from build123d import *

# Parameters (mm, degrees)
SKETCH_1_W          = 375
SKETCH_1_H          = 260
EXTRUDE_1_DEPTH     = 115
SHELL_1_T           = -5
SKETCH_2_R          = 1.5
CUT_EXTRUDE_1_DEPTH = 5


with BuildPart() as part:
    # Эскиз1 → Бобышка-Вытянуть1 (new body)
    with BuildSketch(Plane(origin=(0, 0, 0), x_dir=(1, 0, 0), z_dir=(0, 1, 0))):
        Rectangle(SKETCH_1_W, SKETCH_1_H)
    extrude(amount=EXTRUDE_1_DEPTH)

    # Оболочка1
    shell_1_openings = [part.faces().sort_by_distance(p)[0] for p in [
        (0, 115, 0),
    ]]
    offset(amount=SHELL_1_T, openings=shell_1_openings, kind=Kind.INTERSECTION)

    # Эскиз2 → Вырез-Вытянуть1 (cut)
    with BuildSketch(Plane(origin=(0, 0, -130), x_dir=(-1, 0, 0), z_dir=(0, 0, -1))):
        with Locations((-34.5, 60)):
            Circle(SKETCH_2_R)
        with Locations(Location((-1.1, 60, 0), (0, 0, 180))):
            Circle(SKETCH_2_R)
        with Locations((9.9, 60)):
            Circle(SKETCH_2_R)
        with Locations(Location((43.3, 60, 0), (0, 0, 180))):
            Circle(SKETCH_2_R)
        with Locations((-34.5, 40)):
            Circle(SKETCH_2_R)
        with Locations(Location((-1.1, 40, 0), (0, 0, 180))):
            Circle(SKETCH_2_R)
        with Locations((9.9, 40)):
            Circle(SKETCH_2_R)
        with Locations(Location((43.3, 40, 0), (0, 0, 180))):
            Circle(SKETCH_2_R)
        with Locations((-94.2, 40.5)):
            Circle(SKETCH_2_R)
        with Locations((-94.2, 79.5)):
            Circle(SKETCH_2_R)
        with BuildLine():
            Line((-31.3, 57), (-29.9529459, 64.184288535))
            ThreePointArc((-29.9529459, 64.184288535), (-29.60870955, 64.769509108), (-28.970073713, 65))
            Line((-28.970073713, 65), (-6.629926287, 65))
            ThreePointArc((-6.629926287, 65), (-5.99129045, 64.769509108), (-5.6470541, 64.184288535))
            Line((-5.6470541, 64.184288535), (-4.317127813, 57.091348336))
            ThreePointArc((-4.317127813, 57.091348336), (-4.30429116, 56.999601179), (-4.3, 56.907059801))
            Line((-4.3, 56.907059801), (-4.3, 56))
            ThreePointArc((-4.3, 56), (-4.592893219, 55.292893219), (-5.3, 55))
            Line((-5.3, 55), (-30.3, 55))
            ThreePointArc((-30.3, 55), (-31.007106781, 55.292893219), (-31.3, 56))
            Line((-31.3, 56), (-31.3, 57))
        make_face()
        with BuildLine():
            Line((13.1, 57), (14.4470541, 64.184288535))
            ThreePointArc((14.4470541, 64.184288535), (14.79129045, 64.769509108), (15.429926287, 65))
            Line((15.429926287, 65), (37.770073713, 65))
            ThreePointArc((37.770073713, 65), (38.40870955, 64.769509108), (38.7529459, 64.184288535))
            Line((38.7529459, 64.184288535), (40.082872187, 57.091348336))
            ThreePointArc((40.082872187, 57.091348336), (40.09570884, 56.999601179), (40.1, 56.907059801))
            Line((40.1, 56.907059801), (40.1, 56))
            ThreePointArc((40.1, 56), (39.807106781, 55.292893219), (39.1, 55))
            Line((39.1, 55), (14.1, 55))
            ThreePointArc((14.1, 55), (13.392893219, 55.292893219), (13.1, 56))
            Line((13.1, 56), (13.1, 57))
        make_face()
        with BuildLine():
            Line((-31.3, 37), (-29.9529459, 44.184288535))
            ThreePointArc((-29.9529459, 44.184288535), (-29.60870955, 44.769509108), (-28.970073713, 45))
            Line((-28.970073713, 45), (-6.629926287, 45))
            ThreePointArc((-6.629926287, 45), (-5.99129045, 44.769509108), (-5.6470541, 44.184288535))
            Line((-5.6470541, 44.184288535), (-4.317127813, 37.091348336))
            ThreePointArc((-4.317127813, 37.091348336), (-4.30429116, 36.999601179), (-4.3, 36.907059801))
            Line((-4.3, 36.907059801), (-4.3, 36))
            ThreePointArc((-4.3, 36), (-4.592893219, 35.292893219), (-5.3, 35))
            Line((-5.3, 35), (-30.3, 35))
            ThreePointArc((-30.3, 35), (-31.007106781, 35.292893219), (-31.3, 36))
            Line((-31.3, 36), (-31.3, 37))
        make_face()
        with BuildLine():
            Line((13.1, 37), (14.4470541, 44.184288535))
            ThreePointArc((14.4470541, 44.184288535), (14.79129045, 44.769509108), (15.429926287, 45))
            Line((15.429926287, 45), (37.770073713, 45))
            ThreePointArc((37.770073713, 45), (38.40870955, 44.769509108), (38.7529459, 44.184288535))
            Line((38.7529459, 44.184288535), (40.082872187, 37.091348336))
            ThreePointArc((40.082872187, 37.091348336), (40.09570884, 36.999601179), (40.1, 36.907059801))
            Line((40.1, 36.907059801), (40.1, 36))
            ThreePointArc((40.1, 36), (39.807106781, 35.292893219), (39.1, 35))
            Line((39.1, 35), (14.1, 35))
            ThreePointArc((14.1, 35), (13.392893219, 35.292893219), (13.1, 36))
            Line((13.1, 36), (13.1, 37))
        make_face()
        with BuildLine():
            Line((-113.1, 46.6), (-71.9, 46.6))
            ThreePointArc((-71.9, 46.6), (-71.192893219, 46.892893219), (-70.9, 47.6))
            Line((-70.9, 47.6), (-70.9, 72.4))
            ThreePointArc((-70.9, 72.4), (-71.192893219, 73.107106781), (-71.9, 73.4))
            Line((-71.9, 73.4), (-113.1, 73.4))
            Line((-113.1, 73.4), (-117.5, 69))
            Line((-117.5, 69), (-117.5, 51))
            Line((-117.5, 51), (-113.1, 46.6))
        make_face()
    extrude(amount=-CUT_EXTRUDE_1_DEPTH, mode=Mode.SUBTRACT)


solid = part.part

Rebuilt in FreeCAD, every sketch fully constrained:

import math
import FreeCAD as App
import Part
import Sketcher
from FreeCAD import Vector
Q = App.Units.Quantity


def faces_at(feature, points):
    """Names of the faces that lie closest to the given points."""
    faces = feature.Shape.Faces
    near = lambda p: min(range(len(faces)), key=lambda i: faces[i].distToShape(Part.Vertex(*p))[0])
    return sorted({f"Face{near(p) + 1}" for p in points})

doc = App.newDocument("Part")
body = doc.addObject("PartDesign::Body", "Body")

sketch1 = doc.addObject("Sketcher::SketchObject", "Sketch")
body.addObject(sketch1)
sketch1.AttachmentSupport = (doc.XZ_Plane, [""])
sketch1.MapMode = "FlatFace"
sketch1.addGeometry([
    Part.LineSegment(Vector(-188, -130, 0), Vector(-188, 130, 0)),
    Part.LineSegment(Vector(-188, 130, 0), Vector(188, 130, 0)),
    Part.LineSegment(Vector(188, 130, 0), Vector(188, -130, 0)),
    Part.LineSegment(Vector(188, -130, 0), Vector(-188, -130, 0)),
], False)
sketch1.addConstraint([
    Sketcher.Constraint("Coincident", 0, 2, 1, 1),
    Sketcher.Constraint("Coincident", 1, 2, 2, 1),
    Sketcher.Constraint("Coincident", 2, 2, 3, 1),
    Sketcher.Constraint("Coincident", 3, 2, 0, 1),
    Sketcher.Constraint("Vertical", 0),
    Sketcher.Constraint("Horizontal", 1),
    Sketcher.Constraint("Vertical", 2),
    Sketcher.Constraint("Horizontal", 3),
    Sketcher.Constraint("Symmetric", 0, 2, 2, 2, -1, 1),
    Sketcher.Constraint("DistanceX", 1, 1, 1, 2, Q("375 mm")),
    Sketcher.Constraint("DistanceY", 0, 1, 0, 2, Q("260 mm")),
])
pad1 = doc.addObject("PartDesign::Pad", "Pad")
body.addObject(pad1)
pad1.Profile = sketch1
pad1.Length = 115
pad1.Reversed = True
doc.recompute()

thickness = doc.addObject("PartDesign::Thickness", "Thickness")
body.addObject(thickness)
thickness.Base = (pad1, faces_at(pad1, [(0, 115, 0)]))
thickness.Value = 5
thickness.Reversed = True
thickness.Join = "Intersection"

sketch2 = doc.addObject("Sketcher::SketchObject", "Sketch001")
body.addObject(sketch2)
sketch2.AttachmentSupport = (doc.XY_Plane, [""])
sketch2.MapMode = "FlatFace"
sketch2.AttachmentOffset = App.Placement(Vector(0, 0, -130), App.Rotation())
sketch2.addGeometry([
    Part.Circle(Vector(34.5, 60, 0), Vector(0, 0, 1), 1.5),
    Part.Circle(Vector(1.1, 60, 0), Vector(0, 0, 1), 1.5),
    Part.Circle(Vector(-9.9, 60, 0), Vector(0, 0, 1), 1.5),
    Part.Circle(Vector(-43.3, 60, 0), Vector(0, 0, 1), 1.5),
    Part.Circle(Vector(34.5, 40, 0), Vector(0, 0, 1), 1.5),
    Part.Circle(Vector(1.1, 40, 0), Vector(0, 0, 1), 1.5),
    Part.Circle(Vector(-9.9, 40, 0), Vector(0, 0, 1), 1.5),
    Part.Circle(Vector(-43.3, 40, 0), Vector(0, 0, 1), 1.5),
    Part.Circle(Vector(94.2, 40.5, 0), Vector(0, 0, 1), 1.5),
    Part.Circle(Vector(94.2, 79.5, 0), Vector(0, 0, 1), 1.5),
    Part.LineSegment(Vector(29.95, 64.18, 0), Vector(31.3, 57, 0)),
    Part.LineSegment(Vector(31.3, 57, 0), Vector(31.3, 56, 0)),
    Part.ArcOfCircle(Part.Circle(Vector(30.3, 56, 0), Vector(0, 0, 1), 1), math.radians(-90), math.radians(0)),
    Part.LineSegment(Vector(30.3, 55, 0), Vector(5.3, 55, 0)),
    Part.ArcOfCircle(Part.Circle(Vector(5.3, 56, 0), Vector(0, 0, 1), 1), math.radians(-180), math.radians(-90)),
    Part.LineSegment(Vector(4.3, 56, 0), Vector(4.3, 56.91, 0)),
    Part.ArcOfCircle(Part.Circle(Vector(5.3, 56.91, 0), Vector(0, 0, 1), 1), math.radians(169.38), math.radians(180)),
    Part.LineSegment(Vector(4.32, 57.09, 0), Vector(5.65, 64.18, 0)),
    Part.ArcOfCircle(Part.Circle(Vector(6.63, 64, 0), Vector(0, 0, 1), 1), math.radians(90), math.radians(169)),
    Part.LineSegment(Vector(6.63, 65, 0), Vector(28.97, 65, 0)),
    Part.ArcOfCircle(Part.Circle(Vector(28.97, 64, 0), Vector(0, 0, 1), 1), math.radians(11), math.radians(90)),
    Part.LineSegment(Vector(-14.45, 64.18, 0), Vector(-13.1, 57, 0)),
    Part.LineSegment(Vector(-13.1, 57, 0), Vector(-13.1, 56, 0)),
    Part.ArcOfCircle(Part.Circle(Vector(-14.1, 56, 0), Vector(0, 0, 1), 1), math.radians(-90), math.radians(0)),
    Part.LineSegment(Vector(-14.1, 55, 0), Vector(-39.1, 55, 0)),
    Part.ArcOfCircle(Part.Circle(Vector(-39.1, 56, 0), Vector(0, 0, 1), 1), math.radians(-180), math.radians(-90)),
    Part.LineSegment(Vector(-40.1, 56, 0), Vector(-40.1, 56.91, 0)),
    Part.ArcOfCircle(Part.Circle(Vector(-39.1, 56.91, 0), Vector(0, 0, 1), 1), math.radians(169.38), math.radians(180)),
    Part.LineSegment(Vector(-40.08, 57.09, 0), Vector(-38.75, 64.18, 0)),
    Part.ArcOfCircle(Part.Circle(Vector(-37.77, 64, 0), Vector(0, 0, 1), 1), math.radians(90), math.radians(169)),
    Part.LineSegment(Vector(-37.77, 65, 0), Vector(-15.43, 65, 0)),
    Part.ArcOfCircle(Part.Circle(Vector(-15.43, 64, 0), Vector(0, 0, 1), 1), math.radians(11), math.radians(90)),
    Part.LineSegment(Vector(29.95, 44.18, 0), Vector(31.3, 37, 0)),
    Part.LineSegment(Vector(31.3, 37, 0), Vector(31.3, 36, 0)),
    Part.ArcOfCircle(Part.Circle(Vector(30.3, 36, 0), Vector(0, 0, 1), 1), math.radians(-90), math.radians(0)),
    Part.LineSegment(Vector(30.3, 35, 0), Vector(5.3, 35, 0)),
    Part.ArcOfCircle(Part.Circle(Vector(5.3, 36, 0), Vector(0, 0, 1), 1), math.radians(-180), math.radians(-90)),
    Part.LineSegment(Vector(4.3, 36, 0), Vector(4.3, 36.91, 0)),
    Part.ArcOfCircle(Part.Circle(Vector(5.3, 36.91, 0), Vector(0, 0, 1), 1), math.radians(169.38), math.radians(180)),
    Part.LineSegment(Vector(4.32, 37.09, 0), Vector(5.65, 44.18, 0)),
    Part.ArcOfCircle(Part.Circle(Vector(6.63, 44, 0), Vector(0, 0, 1), 1), math.radians(90), math.radians(169)),
    Part.LineSegment(Vector(6.63, 45, 0), Vector(28.97, 45, 0)),
    Part.ArcOfCircle(Part.Circle(Vector(28.97, 44, 0), Vector(0, 0, 1), 1), math.radians(11), math.radians(90)),
    Part.LineSegment(Vector(-14.45, 44.18, 0), Vector(-13.1, 37, 0)),
    Part.LineSegment(Vector(-13.1, 37, 0), Vector(-13.1, 36, 0)),
    Part.ArcOfCircle(Part.Circle(Vector(-14.1, 36, 0), Vector(0, 0, 1), 1), math.radians(-90), math.radians(0)),
    Part.LineSegment(Vector(-14.1, 35, 0), Vector(-39.1, 35, 0)),
    Part.ArcOfCircle(Part.Circle(Vector(-39.1, 36, 0), Vector(0, 0, 1), 1), math.radians(-180), math.radians(-90)),
    Part.LineSegment(Vector(-40.1, 36, 0), Vector(-40.1, 36.91, 0)),
    Part.ArcOfCircle(Part.Circle(Vector(-39.1, 36.91, 0), Vector(0, 0, 1), 1), math.radians(169.38), math.radians(180)),
    Part.LineSegment(Vector(-40.08, 37.09, 0), Vector(-38.75, 44.18, 0)),
    Part.ArcOfCircle(Part.Circle(Vector(-37.77, 44, 0), Vector(0, 0, 1), 1), math.radians(90), math.radians(169)),
    Part.LineSegment(Vector(-37.77, 45, 0), Vector(-15.43, 45, 0)),
    Part.ArcOfCircle(Part.Circle(Vector(-15.43, 44, 0), Vector(0, 0, 1), 1), math.radians(11), math.radians(90)),
    Part.LineSegment(Vector(113.1, 46.6, 0), Vector(71.9, 46.6, 0)),
    Part.ArcOfCircle(Part.Circle(Vector(71.9, 47.6, 0), Vector(0, 0, 1), 1), math.radians(-180), math.radians(-90)),
    Part.LineSegment(Vector(70.9, 47.6, 0), Vector(70.9, 72.4, 0)),
    Part.ArcOfCircle(Part.Circle(Vector(71.9, 72.4, 0), Vector(0, 0, 1), 1), math.radians(90), math.radians(180)),
    Part.LineSegment(Vector(71.9, 73.4, 0), Vector(113.1, 73.4, 0)),
    Part.LineSegment(Vector(113.1, 73.4, 0), Vector(117.5, 69, 0)),
    Part.LineSegment(Vector(117.5, 69, 0), Vector(117.5, 51, 0)),
    Part.LineSegment(Vector(117.5, 51, 0), Vector(113.1, 46.6, 0)),
], False)
sketch2.addConstraint([
    Sketcher.Constraint("Coincident", 10, 2, 11, 1),
    Sketcher.Constraint("Tangent", 11, 2, 12, 2),
    Sketcher.Constraint("Tangent", 12, 1, 13, 1),
    Sketcher.Constraint("Tangent", 13, 2, 14, 2),
    Sketcher.Constraint("Tangent", 14, 1, 15, 1),
    Sketcher.Constraint("Tangent", 15, 2, 16, 2),
    Sketcher.Constraint("Tangent", 16, 1, 17, 1),
    Sketcher.Constraint("Tangent", 17, 2, 18, 2),
    Sketcher.Constraint("Tangent", 18, 1, 19, 1),
    Sketcher.Constraint("Tangent", 19, 2, 20, 2),
    Sketcher.Constraint("Tangent", 20, 1, 10, 1),
    Sketcher.Constraint("Coincident", 21, 2, 22, 1),
    Sketcher.Constraint("Tangent", 22, 2, 23, 2),
    Sketcher.Constraint("Tangent", 23, 1, 24, 1),
    Sketcher.Constraint("Tangent", 24, 2, 25, 2),
    Sketcher.Constraint("Tangent", 25, 1, 26, 1),
    Sketcher.Constraint("Tangent", 26, 2, 27, 2),
    Sketcher.Constraint("Tangent", 27, 1, 28, 1),
    Sketcher.Constraint("Tangent", 28, 2, 29, 2),
    Sketcher.Constraint("Tangent", 29, 1, 30, 1),
    Sketcher.Constraint("Tangent", 30, 2, 31, 2),
    Sketcher.Constraint("Tangent", 31, 1, 21, 1),
    Sketcher.Constraint("Coincident", 32, 2, 33, 1),
    Sketcher.Constraint("Tangent", 33, 2, 34, 2),
    Sketcher.Constraint("Tangent", 34, 1, 35, 1),
    Sketcher.Constraint("Tangent", 35, 2, 36, 2),
    Sketcher.Constraint("Tangent", 36, 1, 37, 1),
    Sketcher.Constraint("Tangent", 37, 2, 38, 2),
    Sketcher.Constraint("Tangent", 38, 1, 39, 1),
    Sketcher.Constraint("Tangent", 39, 2, 40, 2),
    Sketcher.Constraint("Tangent", 40, 1, 41, 1),
    Sketcher.Constraint("Tangent", 41, 2, 42, 2),
    Sketcher.Constraint("Tangent", 42, 1, 32, 1),
    Sketcher.Constraint("Coincident", 43, 2, 44, 1),
    Sketcher.Constraint("Tangent", 44, 2, 45, 2),
    Sketcher.Constraint("Tangent", 45, 1, 46, 1),
    Sketcher.Constraint("Tangent", 46, 2, 47, 2),
    Sketcher.Constraint("Tangent", 47, 1, 48, 1),
    Sketcher.Constraint("Tangent", 48, 2, 49, 2),
    Sketcher.Constraint("Tangent", 49, 1, 50, 1),
    Sketcher.Constraint("Tangent", 50, 2, 51, 2),
    Sketcher.Constraint("Tangent", 51, 1, 52, 1),
    Sketcher.Constraint("Tangent", 52, 2, 53, 2),
    Sketcher.Constraint("Tangent", 53, 1, 43, 1),
    Sketcher.Constraint("Tangent", 54, 2, 55, 2),
    Sketcher.Constraint("Tangent", 55, 1, 56, 1),
    Sketcher.Constraint("Tangent", 56, 2, 57, 2),
    Sketcher.Constraint("Tangent", 57, 1, 58, 1),
    Sketcher.Constraint("Coincident", 58, 2, 59, 1),
    Sketcher.Constraint("Coincident", 59, 2, 60, 1),
    Sketcher.Constraint("Coincident", 60, 2, 61, 1),
    Sketcher.Constraint("Coincident", 61, 2, 54, 1),
    Sketcher.Constraint("Vertical", 11),
    Sketcher.Constraint("Horizontal", 13),
    Sketcher.Constraint("Vertical", 15),
    Sketcher.Constraint("Horizontal", 19),
    Sketcher.Constraint("Vertical", 22),
    Sketcher.Constraint("Horizontal", 24),
    Sketcher.Constraint("Vertical", 26),
    Sketcher.Constraint("Horizontal", 30),
    Sketcher.Constraint("Vertical", 33),
    Sketcher.Constraint("Horizontal", 35),
    Sketcher.Constraint("Vertical", 37),
    Sketcher.Constraint("Horizontal", 41),
    Sketcher.Constraint("Vertical", 44),
    Sketcher.Constraint("Horizontal", 46),
    Sketcher.Constraint("Vertical", 48),
    Sketcher.Constraint("Horizontal", 52),
    Sketcher.Constraint("Horizontal", 54),
    Sketcher.Constraint("Vertical", 56),
    Sketcher.Constraint("Horizontal", 58),
    Sketcher.Constraint("Vertical", 60),
    Sketcher.Constraint("Equal", 0, 1),
    Sketcher.Constraint("Equal", 1, 2),
    Sketcher.Constraint("Equal", 2, 3),
    Sketcher.Constraint("Equal", 3, 4),
    Sketcher.Constraint("Equal", 4, 5),
    Sketcher.Constraint("Equal", 5, 6),
    Sketcher.Constraint("Equal", 6, 7),
    Sketcher.Constraint("Equal", 7, 8),
    Sketcher.Constraint("Equal", 8, 9),
    Sketcher.Constraint("Equal", 12, 14),
    Sketcher.Constraint("Equal", 14, 16),
    Sketcher.Constraint("Equal", 16, 18),
    Sketcher.Constraint("Equal", 18, 20),
    Sketcher.Constraint("Equal", 20, 23),
    Sketcher.Constraint("Equal", 23, 25),
    Sketcher.Constraint("Equal", 25, 27),
    Sketcher.Constraint("Equal", 27, 29),
    Sketcher.Constraint("Equal", 29, 31),
    Sketcher.Constraint("Equal", 31, 34),
    Sketcher.Constraint("Equal", 34, 36),
    Sketcher.Constraint("Equal", 36, 38),
    Sketcher.Constraint("Equal", 38, 40),
    Sketcher.Constraint("Equal", 40, 42),
    Sketcher.Constraint("Equal", 42, 45),
    Sketcher.Constraint("Equal", 45, 47),
    Sketcher.Constraint("Equal", 47, 49),
    Sketcher.Constraint("Equal", 49, 51),
    Sketcher.Constraint("Equal", 51, 53),
    Sketcher.Constraint("Equal", 53, 55),
    Sketcher.Constraint("Equal", 55, 57),
    Sketcher.Constraint("Parallel", 10, 21),
    Sketcher.Constraint("Parallel", 17, 28),
    Sketcher.Constraint("Parallel", 21, 32),
    Sketcher.Constraint("Parallel", 28, 39),
    Sketcher.Constraint("Parallel", 32, 43),
    Sketcher.Constraint("Parallel", 39, 50),
    Sketcher.Constraint("Perpendicular", 59, 61),
    Sketcher.Constraint("Horizontal", 0, 3, 1, 3),
    Sketcher.Constraint("Horizontal", 1, 3, 2, 3),
    Sketcher.Constraint("Horizontal", 2, 3, 3, 3),
    Sketcher.Constraint("Horizontal", 4, 3, 5, 3),
    Sketcher.Constraint("Horizontal", 5, 3, 6, 3),
    Sketcher.Constraint("Horizontal", 6, 3, 7, 3),
    Sketcher.Constraint("Horizontal", 14, 3, 23, 3),
    Sketcher.Constraint("Horizontal", 16, 3, 27, 3),
    Sketcher.Constraint("Horizontal", 20, 3, 29, 3),
    Sketcher.Constraint("Horizontal", 36, 3, 45, 3),
    Sketcher.Constraint("Horizontal", 38, 3, 49, 3),
    Sketcher.Constraint("Horizontal", 42, 3, 51, 3),
    Sketcher.Constraint("Horizontal", 17, 2, 20, 1),
    Sketcher.Constraint("Horizontal", 10, 2, 21, 2),
    Sketcher.Constraint("Horizontal", 32, 2, 43, 2),
    Sketcher.Constraint("Vertical", 0, 3, 4, 3),
    Sketcher.Constraint("Vertical", 1, 3, 5, 3),
    Sketcher.Constraint("Vertical", 2, 3, 6, 3),
    Sketcher.Constraint("Vertical", 3, 3, 7, 3),
    Sketcher.Constraint("Vertical", 8, 3, 9, 3),
    Sketcher.Constraint("Vertical", 12, 3, 34, 3),
    Sketcher.Constraint("Vertical", 16, 3, 36, 3),
    Sketcher.Constraint("Vertical", 18, 3, 40, 3),
    Sketcher.Constraint("Vertical", 20, 3, 42, 3),
    Sketcher.Constraint("Vertical", 23, 3, 45, 3),
    Sketcher.Constraint("Vertical", 27, 3, 47, 3),
    Sketcher.Constraint("Vertical", 58, 2, 61, 2),
    Sketcher.Constraint("Equal", 13, 24),
    Sketcher.Constraint("Equal", 22, 33),
    Sketcher.Constraint("Equal", 59, 61),
    Sketcher.Constraint("Diameter", 0, Q("3 mm")),
    Sketcher.Constraint("Radius", 12, Q("1 mm")),
    Sketcher.Constraint("DistanceX", 13, 2, 13, 1, Q("25 mm")),
    Sketcher.Constraint("DistanceY", 11, 2, 11, 1, Q("1 mm")),
    Sketcher.Constraint("DistanceY", 60, 2, 60, 1, Q("18 mm")),
    Sketcher.Constraint("DistanceX", 54, 2, 54, 1, Q("41.2 mm")),
    Sketcher.Constraint("DistanceY", 56, 1, 56, 2, Q("24.8 mm")),
    Sketcher.Constraint("DistanceY", -1, 1, 0, 3, Q("60 mm")),
    Sketcher.Constraint("DistanceY", -1, 1, 4, 3, Q("40 mm")),
    Sketcher.Constraint("DistanceY", -1, 1, 12, 3, Q("56 mm")),
    Sketcher.Constraint("DistanceY", -1, 1, 18, 3, Q("64 mm")),
    Sketcher.Constraint("DistanceY", -1, 1, 34, 3, Q("36 mm")),
    Sketcher.Constraint("DistanceY", -1, 1, 59, 2, Q("69 mm")),
    Sketcher.Constraint("DistanceX", -1, 1, 0, 3, Q("34.5 mm")),
    Sketcher.Constraint("DistanceX", -1, 1, 1, 3, Q("1.1 mm")),
    Sketcher.Constraint("DistanceX", 2, 3, -1, 1, Q("9.9 mm")),
    Sketcher.Constraint("DistanceX", 3, 3, -1, 1, Q("43.3 mm")),
    Sketcher.Constraint("DistanceX", -1, 1, 8, 3, Q("94.2 mm")),
    Sketcher.Constraint("DistanceY", -1, 1, 8, 3, Q("40.5 mm")),
    Sketcher.Constraint("DistanceY", -1, 1, 9, 3, Q("79.5 mm")),
    Sketcher.Constraint("DistanceX", -1, 1, 12, 3, Q("30.3 mm")),
    Sketcher.Constraint("DistanceX", 23, 3, -1, 1, Q("14.1 mm")),
    Sketcher.Constraint("DistanceX", -1, 1, 55, 3, Q("71.9 mm")),
    Sketcher.Constraint("DistanceY", 15, 1, 15, 2, Q("0.90706 mm")),
    Sketcher.Constraint("DistanceX", 19, 1, 19, 2, Q("22.340147 mm")),
])
pocket1 = doc.addObject("PartDesign::Pocket", "Pocket")
body.addObject(pocket1)
pocket1.Profile = sketch2
pocket1.Length = 5
pocket1.Reversed = True

doc.recompute()
